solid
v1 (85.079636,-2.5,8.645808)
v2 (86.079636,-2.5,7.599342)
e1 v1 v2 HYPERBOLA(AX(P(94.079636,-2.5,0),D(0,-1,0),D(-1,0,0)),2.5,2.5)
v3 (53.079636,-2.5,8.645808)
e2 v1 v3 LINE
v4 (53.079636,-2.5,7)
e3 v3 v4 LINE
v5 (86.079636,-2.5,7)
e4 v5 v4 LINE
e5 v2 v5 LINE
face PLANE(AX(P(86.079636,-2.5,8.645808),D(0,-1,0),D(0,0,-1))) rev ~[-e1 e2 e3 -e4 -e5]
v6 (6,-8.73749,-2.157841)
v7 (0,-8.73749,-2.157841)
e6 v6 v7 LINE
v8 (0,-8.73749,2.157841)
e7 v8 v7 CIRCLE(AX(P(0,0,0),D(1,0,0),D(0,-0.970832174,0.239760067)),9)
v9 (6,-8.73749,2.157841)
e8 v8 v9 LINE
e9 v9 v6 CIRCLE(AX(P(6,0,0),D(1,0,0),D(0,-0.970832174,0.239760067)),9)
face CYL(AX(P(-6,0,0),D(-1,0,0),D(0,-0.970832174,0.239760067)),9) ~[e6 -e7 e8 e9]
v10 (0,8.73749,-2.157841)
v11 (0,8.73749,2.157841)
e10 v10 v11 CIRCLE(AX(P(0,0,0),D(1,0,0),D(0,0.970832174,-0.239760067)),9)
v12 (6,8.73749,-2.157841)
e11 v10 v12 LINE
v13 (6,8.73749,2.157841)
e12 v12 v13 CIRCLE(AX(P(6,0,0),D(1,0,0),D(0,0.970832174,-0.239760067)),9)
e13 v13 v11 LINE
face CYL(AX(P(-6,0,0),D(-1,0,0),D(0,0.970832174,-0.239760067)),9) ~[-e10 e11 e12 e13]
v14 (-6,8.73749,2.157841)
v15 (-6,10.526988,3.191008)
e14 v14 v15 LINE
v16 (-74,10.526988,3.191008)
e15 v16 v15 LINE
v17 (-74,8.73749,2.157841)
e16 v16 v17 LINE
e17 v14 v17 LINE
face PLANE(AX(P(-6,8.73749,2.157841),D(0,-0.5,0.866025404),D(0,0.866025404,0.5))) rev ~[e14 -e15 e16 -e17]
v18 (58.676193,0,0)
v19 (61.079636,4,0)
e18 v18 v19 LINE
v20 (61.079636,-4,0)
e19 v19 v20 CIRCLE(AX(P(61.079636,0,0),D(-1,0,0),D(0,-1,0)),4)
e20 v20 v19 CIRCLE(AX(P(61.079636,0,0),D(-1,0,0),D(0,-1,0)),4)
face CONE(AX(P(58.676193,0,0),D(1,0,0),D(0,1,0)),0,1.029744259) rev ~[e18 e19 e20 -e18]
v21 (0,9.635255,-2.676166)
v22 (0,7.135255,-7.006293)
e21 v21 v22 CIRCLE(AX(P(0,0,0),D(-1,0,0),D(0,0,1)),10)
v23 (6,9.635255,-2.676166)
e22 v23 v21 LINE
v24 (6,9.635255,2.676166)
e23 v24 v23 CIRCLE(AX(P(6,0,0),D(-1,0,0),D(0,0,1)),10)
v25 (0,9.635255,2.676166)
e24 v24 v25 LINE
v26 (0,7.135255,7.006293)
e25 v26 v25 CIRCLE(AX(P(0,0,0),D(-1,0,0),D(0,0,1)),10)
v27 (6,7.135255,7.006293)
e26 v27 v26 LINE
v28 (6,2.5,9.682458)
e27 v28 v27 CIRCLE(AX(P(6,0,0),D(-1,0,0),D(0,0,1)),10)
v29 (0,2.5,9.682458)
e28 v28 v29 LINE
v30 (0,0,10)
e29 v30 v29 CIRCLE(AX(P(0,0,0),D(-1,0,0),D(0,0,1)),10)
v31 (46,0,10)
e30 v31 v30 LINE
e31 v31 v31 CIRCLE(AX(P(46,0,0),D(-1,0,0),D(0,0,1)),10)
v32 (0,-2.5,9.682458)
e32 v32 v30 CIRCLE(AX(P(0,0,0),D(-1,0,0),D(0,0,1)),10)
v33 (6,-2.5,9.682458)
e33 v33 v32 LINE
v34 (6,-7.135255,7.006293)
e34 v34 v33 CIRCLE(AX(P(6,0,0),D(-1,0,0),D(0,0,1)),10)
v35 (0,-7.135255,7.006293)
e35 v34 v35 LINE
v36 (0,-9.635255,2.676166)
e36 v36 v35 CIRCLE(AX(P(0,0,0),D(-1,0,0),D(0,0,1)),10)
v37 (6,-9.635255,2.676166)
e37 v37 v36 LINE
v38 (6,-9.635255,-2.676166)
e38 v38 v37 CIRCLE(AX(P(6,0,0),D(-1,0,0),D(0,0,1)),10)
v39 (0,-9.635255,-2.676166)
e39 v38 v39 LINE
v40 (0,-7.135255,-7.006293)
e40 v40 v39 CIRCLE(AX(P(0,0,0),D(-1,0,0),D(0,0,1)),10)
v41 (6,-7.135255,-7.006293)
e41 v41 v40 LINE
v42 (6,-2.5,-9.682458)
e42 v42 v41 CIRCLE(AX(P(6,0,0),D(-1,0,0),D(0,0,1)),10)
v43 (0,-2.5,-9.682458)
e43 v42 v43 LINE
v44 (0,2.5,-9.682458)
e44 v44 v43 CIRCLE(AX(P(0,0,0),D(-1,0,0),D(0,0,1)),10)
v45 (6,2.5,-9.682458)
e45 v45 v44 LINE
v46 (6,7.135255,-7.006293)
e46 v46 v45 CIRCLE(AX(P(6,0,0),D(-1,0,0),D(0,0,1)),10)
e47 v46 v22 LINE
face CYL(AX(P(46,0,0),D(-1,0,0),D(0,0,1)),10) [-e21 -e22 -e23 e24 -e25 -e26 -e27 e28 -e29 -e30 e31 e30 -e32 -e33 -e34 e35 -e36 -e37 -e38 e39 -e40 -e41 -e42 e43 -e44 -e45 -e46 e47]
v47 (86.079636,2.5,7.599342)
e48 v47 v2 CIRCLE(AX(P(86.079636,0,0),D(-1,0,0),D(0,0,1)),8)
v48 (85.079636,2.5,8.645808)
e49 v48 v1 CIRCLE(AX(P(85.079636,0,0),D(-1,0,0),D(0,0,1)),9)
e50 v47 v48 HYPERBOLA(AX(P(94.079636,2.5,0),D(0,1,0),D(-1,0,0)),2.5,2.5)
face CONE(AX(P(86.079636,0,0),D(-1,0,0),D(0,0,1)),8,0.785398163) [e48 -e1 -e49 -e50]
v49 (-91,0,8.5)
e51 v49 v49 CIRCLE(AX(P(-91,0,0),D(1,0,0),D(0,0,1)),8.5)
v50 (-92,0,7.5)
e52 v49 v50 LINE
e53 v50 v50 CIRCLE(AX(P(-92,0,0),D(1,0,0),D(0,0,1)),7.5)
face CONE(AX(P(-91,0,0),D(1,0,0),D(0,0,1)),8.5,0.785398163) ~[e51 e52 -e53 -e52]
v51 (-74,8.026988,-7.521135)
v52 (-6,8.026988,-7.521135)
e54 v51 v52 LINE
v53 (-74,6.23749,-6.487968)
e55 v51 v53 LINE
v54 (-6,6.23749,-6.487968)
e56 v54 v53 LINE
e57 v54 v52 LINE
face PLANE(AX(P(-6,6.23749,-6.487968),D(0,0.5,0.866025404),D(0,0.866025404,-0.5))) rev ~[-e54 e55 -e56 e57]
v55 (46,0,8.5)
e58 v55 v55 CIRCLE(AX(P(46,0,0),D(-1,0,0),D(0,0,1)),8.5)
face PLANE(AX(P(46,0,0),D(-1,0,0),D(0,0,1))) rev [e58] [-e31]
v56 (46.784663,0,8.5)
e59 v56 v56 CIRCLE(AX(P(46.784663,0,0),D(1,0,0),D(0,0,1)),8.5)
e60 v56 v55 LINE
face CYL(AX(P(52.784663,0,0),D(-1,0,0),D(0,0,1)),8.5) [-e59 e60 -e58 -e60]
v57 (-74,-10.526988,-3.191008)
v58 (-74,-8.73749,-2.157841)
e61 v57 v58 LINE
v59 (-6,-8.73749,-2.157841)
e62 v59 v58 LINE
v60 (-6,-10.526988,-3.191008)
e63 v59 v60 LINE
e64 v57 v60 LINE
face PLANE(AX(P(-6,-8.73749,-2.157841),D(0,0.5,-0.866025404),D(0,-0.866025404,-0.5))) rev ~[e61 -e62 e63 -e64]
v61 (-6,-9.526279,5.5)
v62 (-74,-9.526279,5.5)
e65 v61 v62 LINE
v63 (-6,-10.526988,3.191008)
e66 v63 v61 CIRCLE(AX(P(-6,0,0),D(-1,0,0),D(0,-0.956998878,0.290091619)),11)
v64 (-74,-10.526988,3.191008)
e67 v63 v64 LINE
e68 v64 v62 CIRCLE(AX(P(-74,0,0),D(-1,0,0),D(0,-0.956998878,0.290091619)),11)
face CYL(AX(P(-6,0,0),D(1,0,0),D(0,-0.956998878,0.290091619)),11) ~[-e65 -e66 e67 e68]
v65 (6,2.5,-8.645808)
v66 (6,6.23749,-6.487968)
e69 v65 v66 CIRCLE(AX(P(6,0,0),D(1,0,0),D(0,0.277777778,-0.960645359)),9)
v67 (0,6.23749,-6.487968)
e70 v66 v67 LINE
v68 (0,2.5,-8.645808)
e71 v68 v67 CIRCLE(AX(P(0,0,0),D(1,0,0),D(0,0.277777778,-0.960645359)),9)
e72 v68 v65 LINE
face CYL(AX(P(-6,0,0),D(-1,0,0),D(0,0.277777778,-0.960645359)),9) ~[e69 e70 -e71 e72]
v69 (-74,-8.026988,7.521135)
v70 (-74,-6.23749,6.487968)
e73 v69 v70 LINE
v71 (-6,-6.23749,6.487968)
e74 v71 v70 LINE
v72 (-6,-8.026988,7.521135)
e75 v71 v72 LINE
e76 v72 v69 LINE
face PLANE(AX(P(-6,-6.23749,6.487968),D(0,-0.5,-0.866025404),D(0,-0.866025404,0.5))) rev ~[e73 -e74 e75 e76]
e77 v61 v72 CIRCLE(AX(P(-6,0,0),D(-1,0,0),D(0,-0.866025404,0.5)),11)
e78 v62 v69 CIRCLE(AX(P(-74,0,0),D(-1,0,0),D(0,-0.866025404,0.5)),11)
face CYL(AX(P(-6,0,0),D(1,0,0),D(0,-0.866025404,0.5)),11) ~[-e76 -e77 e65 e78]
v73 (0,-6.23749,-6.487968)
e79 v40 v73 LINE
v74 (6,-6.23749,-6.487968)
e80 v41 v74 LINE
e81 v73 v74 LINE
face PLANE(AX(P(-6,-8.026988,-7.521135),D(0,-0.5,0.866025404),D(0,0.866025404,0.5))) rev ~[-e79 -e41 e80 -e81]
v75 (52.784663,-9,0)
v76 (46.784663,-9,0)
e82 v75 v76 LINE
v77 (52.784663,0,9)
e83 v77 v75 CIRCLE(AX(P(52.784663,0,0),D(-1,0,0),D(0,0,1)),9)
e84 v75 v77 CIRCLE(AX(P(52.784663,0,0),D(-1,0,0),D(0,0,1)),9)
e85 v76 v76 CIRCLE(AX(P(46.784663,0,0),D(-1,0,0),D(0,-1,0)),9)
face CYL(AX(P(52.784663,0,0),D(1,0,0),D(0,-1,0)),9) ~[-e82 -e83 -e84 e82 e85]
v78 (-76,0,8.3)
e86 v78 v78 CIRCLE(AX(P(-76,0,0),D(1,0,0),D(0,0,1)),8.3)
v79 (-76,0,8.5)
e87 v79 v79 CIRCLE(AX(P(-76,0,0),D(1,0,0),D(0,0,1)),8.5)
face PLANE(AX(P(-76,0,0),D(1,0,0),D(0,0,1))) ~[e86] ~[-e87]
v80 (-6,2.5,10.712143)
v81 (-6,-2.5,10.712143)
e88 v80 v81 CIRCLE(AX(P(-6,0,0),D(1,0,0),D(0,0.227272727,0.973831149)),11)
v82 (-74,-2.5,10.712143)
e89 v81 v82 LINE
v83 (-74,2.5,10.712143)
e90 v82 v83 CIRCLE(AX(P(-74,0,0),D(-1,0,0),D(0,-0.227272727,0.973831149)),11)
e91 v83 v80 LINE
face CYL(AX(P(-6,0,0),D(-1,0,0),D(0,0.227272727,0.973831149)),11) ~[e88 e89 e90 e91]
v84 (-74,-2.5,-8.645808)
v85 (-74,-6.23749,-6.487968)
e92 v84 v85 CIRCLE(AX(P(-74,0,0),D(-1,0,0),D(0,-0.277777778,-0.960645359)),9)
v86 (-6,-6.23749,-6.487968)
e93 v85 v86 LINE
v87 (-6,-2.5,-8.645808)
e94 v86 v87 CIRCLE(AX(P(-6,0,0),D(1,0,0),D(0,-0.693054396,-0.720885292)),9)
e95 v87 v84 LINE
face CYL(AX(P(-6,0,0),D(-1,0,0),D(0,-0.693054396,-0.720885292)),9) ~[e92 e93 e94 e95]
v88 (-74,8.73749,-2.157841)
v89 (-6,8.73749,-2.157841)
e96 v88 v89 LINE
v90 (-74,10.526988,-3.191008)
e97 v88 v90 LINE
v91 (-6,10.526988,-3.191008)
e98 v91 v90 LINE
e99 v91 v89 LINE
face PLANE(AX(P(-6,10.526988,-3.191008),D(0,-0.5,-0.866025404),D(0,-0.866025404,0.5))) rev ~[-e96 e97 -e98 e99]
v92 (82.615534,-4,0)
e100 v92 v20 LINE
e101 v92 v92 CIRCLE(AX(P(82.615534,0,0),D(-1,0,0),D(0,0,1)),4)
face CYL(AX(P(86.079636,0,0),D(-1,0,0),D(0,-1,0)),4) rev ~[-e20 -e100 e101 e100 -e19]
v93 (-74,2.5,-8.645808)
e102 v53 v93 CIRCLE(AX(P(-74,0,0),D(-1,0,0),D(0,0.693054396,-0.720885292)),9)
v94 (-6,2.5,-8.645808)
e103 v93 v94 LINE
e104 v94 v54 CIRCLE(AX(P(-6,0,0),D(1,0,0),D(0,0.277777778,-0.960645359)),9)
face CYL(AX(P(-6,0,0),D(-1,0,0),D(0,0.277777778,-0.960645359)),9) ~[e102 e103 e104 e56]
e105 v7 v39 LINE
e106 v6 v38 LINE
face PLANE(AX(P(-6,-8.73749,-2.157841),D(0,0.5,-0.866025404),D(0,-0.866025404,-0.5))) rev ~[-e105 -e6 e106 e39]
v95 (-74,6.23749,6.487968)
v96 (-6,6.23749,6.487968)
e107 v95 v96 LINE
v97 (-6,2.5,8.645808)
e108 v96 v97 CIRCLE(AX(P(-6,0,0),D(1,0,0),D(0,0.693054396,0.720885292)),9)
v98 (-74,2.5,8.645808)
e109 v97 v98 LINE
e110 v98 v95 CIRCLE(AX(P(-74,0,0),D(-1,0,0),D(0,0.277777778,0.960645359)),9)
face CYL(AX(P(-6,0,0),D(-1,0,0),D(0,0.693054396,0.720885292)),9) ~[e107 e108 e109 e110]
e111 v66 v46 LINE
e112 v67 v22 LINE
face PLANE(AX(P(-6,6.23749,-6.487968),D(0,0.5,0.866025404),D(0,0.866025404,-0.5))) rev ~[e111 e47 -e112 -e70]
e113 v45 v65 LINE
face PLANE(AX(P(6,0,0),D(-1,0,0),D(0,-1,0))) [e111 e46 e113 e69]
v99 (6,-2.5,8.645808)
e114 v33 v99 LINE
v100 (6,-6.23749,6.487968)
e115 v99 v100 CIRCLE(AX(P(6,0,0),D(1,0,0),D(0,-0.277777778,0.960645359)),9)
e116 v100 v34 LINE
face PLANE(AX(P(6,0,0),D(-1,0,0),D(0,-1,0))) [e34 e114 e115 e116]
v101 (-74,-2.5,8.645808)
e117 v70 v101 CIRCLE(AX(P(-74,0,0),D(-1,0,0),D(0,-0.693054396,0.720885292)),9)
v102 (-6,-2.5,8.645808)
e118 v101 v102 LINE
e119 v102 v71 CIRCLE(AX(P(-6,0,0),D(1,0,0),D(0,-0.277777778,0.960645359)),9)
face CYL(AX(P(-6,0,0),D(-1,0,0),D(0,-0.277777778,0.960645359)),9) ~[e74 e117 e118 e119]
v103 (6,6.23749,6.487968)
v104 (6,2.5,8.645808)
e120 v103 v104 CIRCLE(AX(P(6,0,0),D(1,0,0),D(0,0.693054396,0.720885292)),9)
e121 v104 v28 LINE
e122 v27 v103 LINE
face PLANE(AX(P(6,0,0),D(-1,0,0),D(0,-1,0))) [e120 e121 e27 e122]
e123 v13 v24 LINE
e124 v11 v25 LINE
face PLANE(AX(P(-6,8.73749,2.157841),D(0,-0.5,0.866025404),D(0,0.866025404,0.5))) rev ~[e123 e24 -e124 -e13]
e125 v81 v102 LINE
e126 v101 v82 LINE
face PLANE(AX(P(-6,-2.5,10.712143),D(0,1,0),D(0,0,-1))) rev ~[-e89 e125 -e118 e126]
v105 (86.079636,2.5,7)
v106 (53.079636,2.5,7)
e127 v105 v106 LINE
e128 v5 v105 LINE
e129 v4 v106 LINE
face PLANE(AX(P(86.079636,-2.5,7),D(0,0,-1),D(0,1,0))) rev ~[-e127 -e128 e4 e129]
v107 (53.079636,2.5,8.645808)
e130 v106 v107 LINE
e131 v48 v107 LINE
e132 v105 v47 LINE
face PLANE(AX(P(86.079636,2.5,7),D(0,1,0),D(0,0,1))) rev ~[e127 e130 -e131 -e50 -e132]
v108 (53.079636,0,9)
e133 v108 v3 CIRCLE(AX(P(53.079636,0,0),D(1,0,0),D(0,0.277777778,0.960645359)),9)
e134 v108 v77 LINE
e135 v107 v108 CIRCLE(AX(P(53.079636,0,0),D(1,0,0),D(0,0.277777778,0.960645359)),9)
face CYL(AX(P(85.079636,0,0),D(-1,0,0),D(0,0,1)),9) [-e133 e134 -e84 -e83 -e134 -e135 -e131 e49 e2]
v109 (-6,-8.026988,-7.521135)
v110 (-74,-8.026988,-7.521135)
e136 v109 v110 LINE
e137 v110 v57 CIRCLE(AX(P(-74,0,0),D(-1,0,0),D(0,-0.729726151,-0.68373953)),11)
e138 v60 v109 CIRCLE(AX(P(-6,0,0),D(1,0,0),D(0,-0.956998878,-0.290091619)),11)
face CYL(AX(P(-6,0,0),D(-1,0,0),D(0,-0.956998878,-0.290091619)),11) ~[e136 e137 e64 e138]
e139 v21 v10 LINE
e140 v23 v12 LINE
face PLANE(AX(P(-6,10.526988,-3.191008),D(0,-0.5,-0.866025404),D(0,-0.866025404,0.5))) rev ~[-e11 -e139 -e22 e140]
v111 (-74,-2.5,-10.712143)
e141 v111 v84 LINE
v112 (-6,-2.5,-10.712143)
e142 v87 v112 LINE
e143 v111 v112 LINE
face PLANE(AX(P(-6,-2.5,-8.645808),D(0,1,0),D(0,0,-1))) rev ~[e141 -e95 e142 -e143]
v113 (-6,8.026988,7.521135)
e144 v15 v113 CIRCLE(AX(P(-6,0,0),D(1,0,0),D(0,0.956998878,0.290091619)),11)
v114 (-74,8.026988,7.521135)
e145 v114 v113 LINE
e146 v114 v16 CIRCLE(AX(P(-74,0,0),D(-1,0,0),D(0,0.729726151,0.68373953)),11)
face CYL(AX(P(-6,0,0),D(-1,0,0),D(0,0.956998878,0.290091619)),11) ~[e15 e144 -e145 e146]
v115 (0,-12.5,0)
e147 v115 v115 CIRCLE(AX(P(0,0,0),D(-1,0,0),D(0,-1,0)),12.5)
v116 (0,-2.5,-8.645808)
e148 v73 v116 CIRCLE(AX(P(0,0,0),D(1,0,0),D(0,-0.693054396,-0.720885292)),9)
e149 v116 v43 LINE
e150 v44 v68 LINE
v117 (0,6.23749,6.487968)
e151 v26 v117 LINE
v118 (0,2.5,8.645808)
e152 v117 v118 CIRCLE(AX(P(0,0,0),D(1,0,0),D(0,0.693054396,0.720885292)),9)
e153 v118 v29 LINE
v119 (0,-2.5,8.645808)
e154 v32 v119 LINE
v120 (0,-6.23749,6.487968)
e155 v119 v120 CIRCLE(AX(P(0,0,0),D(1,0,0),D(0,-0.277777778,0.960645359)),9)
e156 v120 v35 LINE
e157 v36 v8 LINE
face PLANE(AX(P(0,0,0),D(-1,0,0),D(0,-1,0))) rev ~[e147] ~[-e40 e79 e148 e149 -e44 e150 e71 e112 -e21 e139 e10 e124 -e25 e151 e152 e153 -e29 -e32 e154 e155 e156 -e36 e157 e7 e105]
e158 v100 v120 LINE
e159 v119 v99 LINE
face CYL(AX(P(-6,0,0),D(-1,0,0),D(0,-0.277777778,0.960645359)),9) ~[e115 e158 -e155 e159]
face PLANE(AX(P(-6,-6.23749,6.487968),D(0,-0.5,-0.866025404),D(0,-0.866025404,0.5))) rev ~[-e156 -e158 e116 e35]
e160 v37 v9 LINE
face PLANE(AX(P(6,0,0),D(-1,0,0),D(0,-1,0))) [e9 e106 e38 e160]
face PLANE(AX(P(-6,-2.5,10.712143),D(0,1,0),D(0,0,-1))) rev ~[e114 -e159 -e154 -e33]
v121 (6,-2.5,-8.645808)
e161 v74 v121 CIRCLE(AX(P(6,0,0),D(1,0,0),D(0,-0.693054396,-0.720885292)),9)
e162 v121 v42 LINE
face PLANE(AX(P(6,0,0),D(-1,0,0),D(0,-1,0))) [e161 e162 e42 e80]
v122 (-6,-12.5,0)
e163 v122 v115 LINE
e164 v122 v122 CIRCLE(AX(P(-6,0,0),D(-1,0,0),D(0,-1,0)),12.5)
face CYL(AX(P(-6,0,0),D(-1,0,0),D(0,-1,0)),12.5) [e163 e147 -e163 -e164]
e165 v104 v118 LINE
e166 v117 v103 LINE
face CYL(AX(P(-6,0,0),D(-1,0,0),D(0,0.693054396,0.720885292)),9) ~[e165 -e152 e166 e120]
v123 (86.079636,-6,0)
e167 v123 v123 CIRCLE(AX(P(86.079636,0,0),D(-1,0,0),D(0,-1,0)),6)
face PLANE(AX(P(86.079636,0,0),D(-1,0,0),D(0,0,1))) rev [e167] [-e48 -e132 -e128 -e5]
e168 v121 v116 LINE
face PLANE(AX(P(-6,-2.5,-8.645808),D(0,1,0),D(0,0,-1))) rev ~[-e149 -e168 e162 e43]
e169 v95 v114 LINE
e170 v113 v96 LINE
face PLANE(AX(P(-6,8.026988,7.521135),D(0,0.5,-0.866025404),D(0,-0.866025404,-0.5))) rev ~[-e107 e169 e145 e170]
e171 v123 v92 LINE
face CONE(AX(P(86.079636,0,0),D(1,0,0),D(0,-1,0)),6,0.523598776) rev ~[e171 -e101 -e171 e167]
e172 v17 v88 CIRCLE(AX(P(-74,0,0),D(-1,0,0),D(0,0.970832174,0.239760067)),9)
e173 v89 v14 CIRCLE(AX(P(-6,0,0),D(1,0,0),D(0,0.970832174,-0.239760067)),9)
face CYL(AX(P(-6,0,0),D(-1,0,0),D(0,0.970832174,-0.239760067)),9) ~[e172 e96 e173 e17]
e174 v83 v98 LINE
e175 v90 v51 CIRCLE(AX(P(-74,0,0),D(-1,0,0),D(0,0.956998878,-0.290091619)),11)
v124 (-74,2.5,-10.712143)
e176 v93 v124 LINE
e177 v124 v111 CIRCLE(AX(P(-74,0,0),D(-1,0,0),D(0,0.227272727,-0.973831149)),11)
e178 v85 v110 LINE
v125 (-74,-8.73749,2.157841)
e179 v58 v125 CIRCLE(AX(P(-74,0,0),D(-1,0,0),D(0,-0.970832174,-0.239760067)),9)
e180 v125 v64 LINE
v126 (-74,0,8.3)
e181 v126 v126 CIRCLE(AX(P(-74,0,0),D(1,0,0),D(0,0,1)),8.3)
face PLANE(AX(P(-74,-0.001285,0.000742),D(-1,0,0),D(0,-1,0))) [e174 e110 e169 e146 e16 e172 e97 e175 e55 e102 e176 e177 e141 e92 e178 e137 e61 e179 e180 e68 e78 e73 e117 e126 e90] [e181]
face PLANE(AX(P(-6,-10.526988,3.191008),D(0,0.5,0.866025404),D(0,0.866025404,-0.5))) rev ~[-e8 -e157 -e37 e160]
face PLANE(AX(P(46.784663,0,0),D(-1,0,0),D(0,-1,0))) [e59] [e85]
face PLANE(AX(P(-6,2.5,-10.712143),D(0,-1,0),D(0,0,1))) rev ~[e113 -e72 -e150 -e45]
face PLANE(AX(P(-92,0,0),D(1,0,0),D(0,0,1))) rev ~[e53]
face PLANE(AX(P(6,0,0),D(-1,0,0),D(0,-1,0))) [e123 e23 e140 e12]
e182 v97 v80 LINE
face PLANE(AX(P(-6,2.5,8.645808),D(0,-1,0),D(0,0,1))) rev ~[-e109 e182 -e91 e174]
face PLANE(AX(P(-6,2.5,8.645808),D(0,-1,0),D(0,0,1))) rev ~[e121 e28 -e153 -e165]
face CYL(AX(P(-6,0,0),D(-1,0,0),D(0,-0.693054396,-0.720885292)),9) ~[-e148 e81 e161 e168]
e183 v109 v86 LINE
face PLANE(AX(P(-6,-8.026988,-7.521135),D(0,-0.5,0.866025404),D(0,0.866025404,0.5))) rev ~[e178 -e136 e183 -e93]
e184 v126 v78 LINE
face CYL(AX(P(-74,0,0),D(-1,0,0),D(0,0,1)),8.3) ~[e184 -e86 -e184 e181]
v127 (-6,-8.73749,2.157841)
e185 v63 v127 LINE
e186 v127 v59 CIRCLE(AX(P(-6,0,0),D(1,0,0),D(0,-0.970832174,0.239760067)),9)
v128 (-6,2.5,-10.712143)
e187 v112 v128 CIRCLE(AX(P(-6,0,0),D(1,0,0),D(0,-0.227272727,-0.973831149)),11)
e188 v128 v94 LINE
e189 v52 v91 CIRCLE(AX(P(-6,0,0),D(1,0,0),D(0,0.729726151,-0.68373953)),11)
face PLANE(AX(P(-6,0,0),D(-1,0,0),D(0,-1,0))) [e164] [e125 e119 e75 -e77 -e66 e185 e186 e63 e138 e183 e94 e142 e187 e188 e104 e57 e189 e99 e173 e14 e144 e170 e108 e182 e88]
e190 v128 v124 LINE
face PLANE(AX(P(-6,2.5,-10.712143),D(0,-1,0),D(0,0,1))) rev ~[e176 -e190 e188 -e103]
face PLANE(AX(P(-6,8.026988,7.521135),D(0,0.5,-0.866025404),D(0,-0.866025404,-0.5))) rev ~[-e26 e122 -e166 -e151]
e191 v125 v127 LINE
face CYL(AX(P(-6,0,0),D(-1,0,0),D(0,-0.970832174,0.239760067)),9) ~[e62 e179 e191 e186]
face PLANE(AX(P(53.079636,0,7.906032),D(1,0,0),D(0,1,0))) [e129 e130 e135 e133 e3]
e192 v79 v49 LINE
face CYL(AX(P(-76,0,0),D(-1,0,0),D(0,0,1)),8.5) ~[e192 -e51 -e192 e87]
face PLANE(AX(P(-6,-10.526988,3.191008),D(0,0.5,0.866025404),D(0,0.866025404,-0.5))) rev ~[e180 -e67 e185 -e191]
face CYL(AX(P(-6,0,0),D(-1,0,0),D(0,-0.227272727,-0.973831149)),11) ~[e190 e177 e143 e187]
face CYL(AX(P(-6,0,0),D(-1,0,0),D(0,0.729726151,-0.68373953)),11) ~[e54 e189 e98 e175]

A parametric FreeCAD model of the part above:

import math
import FreeCAD as App
import Part
import Sketcher
Q = App.Units.Quantity

doc = App.newDocument("Part")
params = doc.addObject("Spreadsheet::Sheet", "Params")
for row, (alias, value) in enumerate([
    ("sketch1_width", "46 mm"),
    ("sketch1_height", "10 mm"),
    ("sketch1_height2", "8 mm"),
    ("sketch1_height3", "0.5 mm"),
    ("sketch1_height4", "1.5 mm"),
    ("revolution_angle", "360 deg"),
    ("sketch2_diameter", "25 mm"),
    ("pad1_length", "6 mm"),
    ("sketch3_radius", "9 mm"),
    ("sketch3_radius2", "11 mm"),
    ("pad2_length", "68 mm"),
    ("sketch4_diameter", "25 mm"),
    ("sketch4_radius", "9 mm"),
    ("sketch4_radius2", "11 mm"),
    ("pocket1_length", "12 mm"),
    ("sketch5_diameter", "25 mm"),
    ("sketch5_radius", "9 mm"),
    ("sketch5_radius2", "11 mm"),
    ("pad3_length", "6 mm"),
    ("sketch6_width", "18 mm"),
    ("sketch6_width2", "2 mm"),
    ("sketch6_width3", "15 mm"),
    ("sketch6_height", "8.3 mm"),
    ("sketch6_height2", "0.2 mm"),
    ("revolution2_angle", "360 deg"),
    ("sketch7_diameter", "8 mm"),
    ("hole_diameter", "8 mm"),
    ("hole_depth", "25 mm"),
    ("hole_csink_diameter", "12 mm"),
    ("sketch8_radius", "9 mm"),
    ("sketch8_width", "5 mm"),
    ("pocket2_length", "33 mm"),
    ("sketch9_diameter", "18 mm"),
    ("sketch9_diameter2", "17 mm"),
    ("pad4_length", "6 mm"),
], start=1):
    params.set(f"A{row}", alias)
    params.set(f"B{row}", "=" + value)
    params.setAlias(f"B{row}", alias)

body = doc.addObject("PartDesign::Body", "Body")

# Sketch on XZ plane
sketch1 = doc.addObject("Sketcher::SketchObject", "Sketch")
body.addObject(sketch1)
sketch1.AttachmentSupport = (doc.XZ_Plane, [""])
sketch1.MapMode = "FlatFace"
sketch1.addGeometry([
    Part.LineSegment(App.Vector(0, 10, 0), App.Vector(0, 0, 0)),  # 0
    Part.LineSegment(App.Vector(0, 0, 0), App.Vector(86.1, 0, 0)),  # 1
    Part.LineSegment(App.Vector(86.1, 0, 0), App.Vector(86.1, 8, 0)),  # 2
    Part.LineSegment(App.Vector(86.1, 8, 0), App.Vector(85.1, 9, 0)),  # 3
    Part.LineSegment(App.Vector(85.1, 9, 0), App.Vector(52.8, 9, 0)),  # 4
    Part.LineSegment(App.Vector(52.8, 9, 0), App.Vector(52.8, 8.5, 0)),  # 5
    Part.LineSegment(App.Vector(52.8, 8.5, 0), App.Vector(46, 8.5, 0)),  # 6
    Part.LineSegment(App.Vector(46, 8.5, 0), App.Vector(46, 10, 0)),  # 7
    Part.LineSegment(App.Vector(46, 10, 0), App.Vector(0, 10, 0)),  # 8
], False)
sketch1.addConstraint([
    Sketcher.Constraint("Coincident", 0, 2, 1, 1),
    Sketcher.Constraint("Coincident", 1, 2, 2, 1),
    Sketcher.Constraint("Coincident", 2, 2, 3, 1),
    Sketcher.Constraint("Coincident", 3, 2, 4, 1),
    Sketcher.Constraint("Coincident", 4, 2, 5, 1),
    Sketcher.Constraint("Coincident", 5, 2, 6, 1),
    Sketcher.Constraint("Coincident", 6, 2, 7, 1),
    Sketcher.Constraint("Coincident", 7, 2, 8, 1),
    Sketcher.Constraint("Coincident", 8, 2, 0, 1),
    Sketcher.Constraint("Vertical", 0),
    Sketcher.Constraint("Horizontal", 1),
    Sketcher.Constraint("Vertical", 2),
    Sketcher.Constraint("Horizontal", 4),
    Sketcher.Constraint("Vertical", 5),
    Sketcher.Constraint("Horizontal", 6),
    Sketcher.Constraint("Vertical", 7),
    Sketcher.Constraint("Horizontal", 8),
    Sketcher.Constraint("Coincident", 0, 2, -1, 1),
    Sketcher.Constraint("DistanceX", 8, 2, 8, 1, 46.0),
    Sketcher.Constraint("DistanceY", 0, 2, 0, 1, 10.0),
    Sketcher.Constraint("DistanceY", 2, 1, 2, 2, 8.0),
    Sketcher.Constraint("Angle", 3, Q("135 deg")),
    Sketcher.Constraint("DistanceY", 5, 2, 5, 1, 0.5),
    Sketcher.Constraint("DistanceY", 7, 1, 7, 2, 1.5),
    Sketcher.Constraint("DistanceX", 1, 1, 1, 2, 86.079636),
    Sketcher.Constraint("DistanceX", 4, 2, 4, 1, 32.294973),
])
sketch1.setExpression("Constraints[18]", "Params.sketch1_width")
sketch1.setExpression("Constraints[19]", "Params.sketch1_height")
sketch1.setExpression("Constraints[20]", "Params.sketch1_height2")
sketch1.setExpression("Constraints[22]", "Params.sketch1_height3")
sketch1.setExpression("Constraints[23]", "Params.sketch1_height4")
revolution = doc.addObject("PartDesign::Revolution", "Revolution")
body.addObject(revolution)
revolution.Profile = sketch1
revolution.ReferenceAxis = (sketch1, ["H_Axis"])
revolution.setExpression("Angle", "Params.revolution_angle")

# Sketch on YZ plane
sketch2 = doc.addObject("Sketcher::SketchObject", "Sketch001")
body.addObject(sketch2)
sketch2.AttachmentSupport = (doc.YZ_Plane, [""])
sketch2.MapMode = "FlatFace"
sketch2.addGeometry(Part.Circle(App.Vector(0, 0, 0), App.Vector(0, 0, 1), 12), False)
sketch2.addConstraint([
    Sketcher.Constraint("Coincident", 0, 3, -1, 1),
    Sketcher.Constraint("Diameter", 0, 25.0),
])
sketch2.setExpression("Constraints[1]", "Params.sketch2_diameter")
pad1 = doc.addObject("PartDesign::Pad", "Pad")
body.addObject(pad1)
pad1.Profile = sketch2
pad1.setExpression("Length", "Params.pad1_length")
pad1.Reversed = True

# Sketch on YZ plane
sketch3 = doc.addObject("Sketcher::SketchObject", "Sketch002")
body.addObject(sketch3)
sketch3.AttachmentSupport = (doc.YZ_Plane, [""])
sketch3.MapMode = "FlatFace"
sketch3.AttachmentOffset = App.Placement(App.Vector(0, 0, -6), App.Rotation())
sketch3.addGeometry([
    Part.LineSegment(App.Vector(-8, 7.5, 0), App.Vector(-6.2, 6.5, 0)),  # 0
    Part.ArcOfCircle(Part.Circle(App.Vector(0, 0, 0), App.Vector(0, 0, 1), 9), math.radians(106), math.radians(134)),  # 1
    Part.LineSegment(App.Vector(-2.5, 8.6, 0), App.Vector(-2.5, 10.7, 0)),  # 2
    Part.ArcOfCircle(Part.Circle(App.Vector(0, 0, 0), App.Vector(0, 0, 1), 11), math.radians(77), math.radians(103)),  # 3
    Part.LineSegment(App.Vector(2.5, 10.7, 0), App.Vector(2.5, 8.6, 0)),  # 4
    Part.ArcOfCircle(Part.Circle(App.Vector(0, 0, 0), App.Vector(0, 0, 1), 9), math.radians(46), math.radians(74)),  # 5
    Part.LineSegment(App.Vector(6.2, 6.5, 0), App.Vector(8, 7.5, 0)),  # 6
    Part.ArcOfCircle(Part.Circle(App.Vector(0, 0, 0), App.Vector(0, 0, 1), 11), math.radians(17), math.radians(43)),  # 7
    Part.LineSegment(App.Vector(10.5, 3.2, 0), App.Vector(8.7, 2.2, 0)),  # 8
    Part.ArcOfCircle(Part.Circle(App.Vector(0, 0, 0), App.Vector(0, 0, 1), 9), math.radians(-14), math.radians(14)),  # 9
    Part.LineSegment(App.Vector(8.7, -2.2, 0), App.Vector(10.5, -3.2, 0)),  # 10
    Part.ArcOfCircle(Part.Circle(App.Vector(0, 0, 0), App.Vector(0, 0, 1), 11), math.radians(-43), math.radians(-17)),  # 11
    Part.LineSegment(App.Vector(8, -7.5, 0), App.Vector(6.2, -6.5, 0)),  # 12
    Part.ArcOfCircle(Part.Circle(App.Vector(0, 0, 0), App.Vector(0, 0, 1), 9), math.radians(-74), math.radians(-46)),  # 13
    Part.LineSegment(App.Vector(2.5, -8.6, 0), App.Vector(2.5, -10.7, 0)),  # 14
    Part.ArcOfCircle(Part.Circle(App.Vector(0, 0, 0), App.Vector(0, 0, 1), 11), math.radians(-103), math.radians(-77)),  # 15
    Part.LineSegment(App.Vector(-2.5, -10.7, 0), App.Vector(-2.5, -8.6, 0)),  # 16
    Part.ArcOfCircle(Part.Circle(App.Vector(0, 0, 0), App.Vector(0, 0, 1), 9), math.radians(-134), math.radians(-106)),  # 17
    Part.LineSegment(App.Vector(-6.2, -6.5, 0), App.Vector(-8, -7.5, 0)),  # 18
    Part.ArcOfCircle(Part.Circle(App.Vector(0, 0, 0), App.Vector(0, 0, 1), 11), math.radians(-163), math.radians(-137)),  # 19
    Part.LineSegment(App.Vector(-10.5, -3.2, 0), App.Vector(-8.7, -2.2, 0)),  # 20
    Part.ArcOfCircle(Part.Circle(App.Vector(0, 0, 0), App.Vector(0, 0, 1), 9), math.radians(166), math.radians(194)),  # 21
    Part.LineSegment(App.Vector(-8.7, 2.2, 0), App.Vector(-10.5, 3.2, 0)),  # 22
    Part.ArcOfCircle(Part.Circle(App.Vector(0, 0, 0), App.Vector(0, 0, 1), 11), math.radians(150), math.radians(163.14)),  # 23
    Part.ArcOfCircle(Part.Circle(App.Vector(0, 0, 0), App.Vector(0, 0, 1), 11), math.radians(136.86), math.radians(150)),  # 24
], False)
sketch3.addConstraint([
    Sketcher.Constraint("Coincident", 0, 2, 1, 2),
    Sketcher.Constraint("Coincident", 1, 1, 2, 1),
    Sketcher.Constraint("Coincident", 2, 2, 3, 2),
    Sketcher.Constraint("Coincident", 3, 1, 4, 1),
    Sketcher.Constraint("Coincident", 4, 2, 5, 2),
    Sketcher.Constraint("Coincident", 5, 1, 6, 1),
    Sketcher.Constraint("Coincident", 6, 2, 7, 2),
    Sketcher.Constraint("Coincident", 7, 1, 8, 1),
    Sketcher.Constraint("Coincident", 8, 2, 9, 2),
    Sketcher.Constraint("Coincident", 9, 1, 10, 1),
    Sketcher.Constraint("Coincident", 10, 2, 11, 2),
    Sketcher.Constraint("Coincident", 11, 1, 12, 1),
    Sketcher.Constraint("Coincident", 12, 2, 13, 2),
    Sketcher.Constraint("Coincident", 13, 1, 14, 1),
    Sketcher.Constraint("Coincident", 14, 2, 15, 2),
    Sketcher.Constraint("Coincident", 15, 1, 16, 1),
    Sketcher.Constraint("Coincident", 16, 2, 17, 2),
    Sketcher.Constraint("Coincident", 17, 1, 18, 1),
    Sketcher.Constraint("Coincident", 18, 2, 19, 2),
    Sketcher.Constraint("Coincident", 19, 1, 20, 1),
    Sketcher.Constraint("Coincident", 20, 2, 21, 2),
    Sketcher.Constraint("Coincident", 21, 1, 22, 1),
    Sketcher.Constraint("Coincident", 22, 2, 23, 2),
    Sketcher.Constraint("Tangent", 23, 1, 24, 2),
    Sketcher.Constraint("Coincident", 24, 1, 0, 1),
    Sketcher.Constraint("Vertical", 2),
    Sketcher.Constraint("Vertical", 4),
    Sketcher.Constraint("Vertical", 14),
    Sketcher.Constraint("Vertical", 16),
    Sketcher.Constraint("Coincident", 1, 3, -1, 1),
    Sketcher.Constraint("Coincident", 3, 3, -1, 1),
    Sketcher.Constraint("Coincident", 5, 3, -1, 1),
    Sketcher.Constraint("Coincident", 7, 3, -1, 1),
    Sketcher.Constraint("Coincident", 9, 3, -1, 1),
    Sketcher.Constraint("Coincident", 11, 3, -1, 1),
    Sketcher.Constraint("Coincident", 13, 3, -1, 1),
    Sketcher.Constraint("Coincident", 15, 3, -1, 1),
    Sketcher.Constraint("Coincident", 17, 3, -1, 1),
    Sketcher.Constraint("Coincident", 19, 3, -1, 1),
    Sketcher.Constraint("Coincident", 21, 3, -1, 1),
    Sketcher.Constraint("Coincident", 23, 3, -1, 1),
    Sketcher.Constraint("Equal", 1, 5),
    Sketcher.Constraint("Equal", 3, 7),
    Sketcher.Constraint("Equal", 5, 9),
    Sketcher.Constraint("Equal", 7, 11),
    Sketcher.Constraint("Equal", 9, 13),
    Sketcher.Constraint("Equal", 11, 15),
    Sketcher.Constraint("Equal", 13, 17),
    Sketcher.Constraint("Equal", 15, 19),
    Sketcher.Constraint("Equal", 17, 21),
    Sketcher.Constraint("Equal", 19, 23),
    Sketcher.Constraint("Equal", 23, 24),
    Sketcher.Constraint("Parallel", 6, 8),
    Sketcher.Constraint("Parallel", 0, 10),
    Sketcher.Constraint("Parallel", 10, 12),
    Sketcher.Constraint("Parallel", 8, 18),
    Sketcher.Constraint("Parallel", 18, 20),
    Sketcher.Constraint("Parallel", 12, 22),
    Sketcher.Constraint("Horizontal", 2, 2, 3, 1),
    Sketcher.Constraint("Horizontal", 0, 2, 5, 1),
    Sketcher.Constraint("Horizontal", 14, 2, 15, 1),
    Sketcher.Constraint("Horizontal", 12, 2, 17, 1),
    Sketcher.Constraint("Horizontal", 11, 1, 18, 2),
    Sketcher.Constraint("Horizontal", 10, 2, 19, 1),
    Sketcher.Constraint("Horizontal", 8, 2, 21, 1),
    Sketcher.Constraint("Vertical", 8, 2, 9, 1),
    Sketcher.Constraint("Vertical", 6, 2, 11, 1),
    Sketcher.Constraint("Vertical", 4, 2, 13, 1),
    Sketcher.Constraint("Equal", 6, 8),
    Sketcher.Constraint("Radius", 1, 9.0),
    Sketcher.Constraint("Radius", 3, 11.0),
    Sketcher.Constraint("Angle", 0, Q("-30 deg")),
    Sketcher.Constraint("DistanceX", 2, 2, 3, 1, 5.0),
    Sketcher.Constraint("DistanceY", -1, 1, 23, 1, 5.5),
    Sketcher.Constraint("DistanceX", 6, 2, 7, 1, 2.5),
])
sketch3.setExpression("Constraints[69]", "Params.sketch3_radius")
sketch3.setExpression("Constraints[70]", "Params.sketch3_radius2")
pad2 = doc.addObject("PartDesign::Pad", "Pad001")
body.addObject(pad2)
pad2.Profile = sketch3
pad2.setExpression("Length", "Params.pad2_length")
pad2.Reversed = True

# Sketch on YZ plane
sketch4 = doc.addObject("Sketcher::SketchObject", "Sketch003")
body.addObject(sketch4)
sketch4.AttachmentSupport = (doc.YZ_Plane, [""])
sketch4.MapMode = "FlatFace"
sketch4.AttachmentOffset = App.Placement(App.Vector(0, 0, -6), App.Rotation())
sketch4.addGeometry([
    Part.Circle(App.Vector(0, 0, 0), App.Vector(0, 0, 1), 12.5),  # 0
    Part.LineSegment(App.Vector(-2.5, 10.7, 0), App.Vector(-2.5, 8.6, 0)),  # 1
    Part.ArcOfCircle(Part.Circle(App.Vector(0, 0, 0), App.Vector(0, 0, 1), 9), math.radians(106), math.radians(134)),  # 2
    Part.LineSegment(App.Vector(-6.2, 6.5, 0), App.Vector(-8, 7.5, 0)),  # 3
    Part.ArcOfCircle(Part.Circle(App.Vector(0, 0, 0), App.Vector(0, 0, 1), 11), math.radians(137), math.radians(163)),  # 4
    Part.LineSegment(App.Vector(-10.5, 3.2, 0), App.Vector(-8.7, 2.2, 0)),  # 5
    Part.ArcOfCircle(Part.Circle(App.Vector(0, 0, 0), App.Vector(0, 0, 1), 9), math.radians(166), math.radians(194)),  # 6
    Part.LineSegment(App.Vector(-8.7, -2.2, 0), App.Vector(-10.5, -3.2, 0)),  # 7
    Part.ArcOfCircle(Part.Circle(App.Vector(0, 0, 0), App.Vector(0, 0, 1), 11), math.radians(-163), math.radians(-137)),  # 8
    Part.LineSegment(App.Vector(-8, -7.5, 0), App.Vector(-6.2, -6.5, 0)),  # 9
    Part.ArcOfCircle(Part.Circle(App.Vector(0, 0, 0), App.Vector(0, 0, 1), 9), math.radians(-134), math.radians(-106)),  # 10
    Part.LineSegment(App.Vector(-2.5, -8.6, 0), App.Vector(-2.5, -10.7, 0)),  # 11
    Part.ArcOfCircle(Part.Circle(App.Vector(0, 0, 0), App.Vector(0, 0, 1), 11), math.radians(-103), math.radians(-77)),  # 12
    Part.LineSegment(App.Vector(2.5, -10.7, 0), App.Vector(2.5, -8.6, 0)),  # 13
    Part.ArcOfCircle(Part.Circle(App.Vector(0, 0, 0), App.Vector(0, 0, 1), 9), math.radians(-74), math.radians(-46)),  # 14
    Part.LineSegment(App.Vector(6.2, -6.5, 0), App.Vector(8, -7.5, 0)),  # 15
    Part.ArcOfCircle(Part.Circle(App.Vector(0, 0, 0), App.Vector(0, 0, 1), 11), math.radians(-43), math.radians(-17)),  # 16
    Part.LineSegment(App.Vector(10.5, -3.2, 0), App.Vector(8.7, -2.2, 0)),  # 17
    Part.ArcOfCircle(Part.Circle(App.Vector(0, 0, 0), App.Vector(0, 0, 1), 9), math.radians(-14), math.radians(14)),  # 18
    Part.LineSegment(App.Vector(8.7, 2.2, 0), App.Vector(10.5, 3.2, 0)),  # 19
    Part.ArcOfCircle(Part.Circle(App.Vector(0, 0, 0), App.Vector(0, 0, 1), 11), math.radians(17), math.radians(43)),  # 20
    Part.LineSegment(App.Vector(8, 7.5, 0), App.Vector(6.2, 6.5, 0)),  # 21
    Part.ArcOfCircle(Part.Circle(App.Vector(0, 0, 0), App.Vector(0, 0, 1), 9), math.radians(46), math.radians(74)),  # 22
    Part.LineSegment(App.Vector(2.5, 8.6, 0), App.Vector(2.5, 10.7, 0)),  # 23
    Part.ArcOfCircle(Part.Circle(App.Vector(0, 0, 0), App.Vector(0, 0, 1), 11), math.radians(77), math.radians(103)),  # 24
], False)
sketch4.addConstraint([
    Sketcher.Constraint("Coincident", 1, 2, 2, 1),
    Sketcher.Constraint("Coincident", 2, 2, 3, 1),
    Sketcher.Constraint("Coincident", 3, 2, 4, 1),
    Sketcher.Constraint("Coincident", 4, 2, 5, 1),
    Sketcher.Constraint("Coincident", 5, 2, 6, 1),
    Sketcher.Constraint("Coincident", 6, 2, 7, 1),
    Sketcher.Constraint("Coincident", 7, 2, 8, 1),
    Sketcher.Constraint("Coincident", 8, 2, 9, 1),
    Sketcher.Constraint("Coincident", 9, 2, 10, 1),
    Sketcher.Constraint("Coincident", 10, 2, 11, 1),
    Sketcher.Constraint("Coincident", 11, 2, 12, 1),
    Sketcher.Constraint("Coincident", 12, 2, 13, 1),
    Sketcher.Constraint("Coincident", 13, 2, 14, 1),
    Sketcher.Constraint("Coincident", 14, 2, 15, 1),
    Sketcher.Constraint("Coincident", 15, 2, 16, 1),
    Sketcher.Constraint("Coincident", 16, 2, 17, 1),
    Sketcher.Constraint("Coincident", 17, 2, 18, 1),
    Sketcher.Constraint("Coincident", 18, 2, 19, 1),
    Sketcher.Constraint("Coincident", 19, 2, 20, 1),
    Sketcher.Constraint("Coincident", 20, 2, 21, 1),
    Sketcher.Constraint("Coincident", 21, 2, 22, 1),
    Sketcher.Constraint("Coincident", 22, 2, 23, 1),
    Sketcher.Constraint("Coincident", 23, 2, 24, 1),
    Sketcher.Constraint("Coincident", 24, 2, 1, 1),
    Sketcher.Constraint("Vertical", 1),
    Sketcher.Constraint("Vertical", 11),
    Sketcher.Constraint("Vertical", 13),
    Sketcher.Constraint("Vertical", 23),
    Sketcher.Constraint("Coincident", 0, 3, -1, 1),
    Sketcher.Constraint("Coincident", 2, 3, -1, 1),
    Sketcher.Constraint("Coincident", 4, 3, -1, 1),
    Sketcher.Constraint("Coincident", 6, 3, -1, 1),
    Sketcher.Constraint("Coincident", 8, 3, -1, 1),
    Sketcher.Constraint("Coincident", 10, 3, -1, 1),
    Sketcher.Constraint("Coincident", 12, 3, -1, 1),
    Sketcher.Constraint("Coincident", 14, 3, -1, 1),
    Sketcher.Constraint("Coincident", 16, 3, -1, 1),
    Sketcher.Constraint("Coincident", 18, 3, -1, 1),
    Sketcher.Constraint("Coincident", 20, 3, -1, 1),
    Sketcher.Constraint("Coincident", 22, 3, -1, 1),
    Sketcher.Constraint("Coincident", 24, 3, -1, 1),
    Sketcher.Constraint("Equal", 2, 6),
    Sketcher.Constraint("Equal", 4, 8),
    Sketcher.Constraint("Equal", 6, 10),
    Sketcher.Constraint("Equal", 8, 12),
    Sketcher.Constraint("Equal", 10, 14),
    Sketcher.Constraint("Equal", 12, 16),
    Sketcher.Constraint("Equal", 14, 18),
    Sketcher.Constraint("Equal", 16, 20),
    Sketcher.Constraint("Equal", 18, 22),
    Sketcher.Constraint("Equal", 20, 24),
    Sketcher.Constraint("Parallel", 3, 5),
    Sketcher.Constraint("Parallel", 7, 9),
    Sketcher.Constraint("Parallel", 5, 15),
    Sketcher.Constraint("Parallel", 15, 17),
    Sketcher.Constraint("Parallel", 9, 19),
    Sketcher.Constraint("Parallel", 19, 21),
    Sketcher.Constraint("Horizontal", 11, 2, 12, 2),
    Sketcher.Constraint("Horizontal", 9, 2, 14, 2),
    Sketcher.Constraint("Horizontal", 8, 2, 15, 2),
    Sketcher.Constraint("Horizontal", 7, 2, 16, 2),
    Sketcher.Constraint("Horizontal", 5, 2, 18, 2),
    Sketcher.Constraint("Horizontal", 3, 2, 20, 2),
    Sketcher.Constraint("Horizontal", 1, 2, 22, 2),
    Sketcher.Constraint("Vertical", 5, 2, 6, 2),
    Sketcher.Constraint("Vertical", 3, 2, 8, 2),
    Sketcher.Constraint("Vertical", 1, 2, 10, 2),
    Sketcher.Constraint("Equal", 3, 5),
    Sketcher.Constraint("Diameter", 0, 25.0),
    Sketcher.Constraint("Radius", 2, 9.0),
    Sketcher.Constraint("Radius", 4, 11.0),
    Sketcher.Constraint("Angle", 3, Q("150 deg")),
    Sketcher.Constraint("DistanceX", 11, 2, 12, 2, 5.0),
    Sketcher.Constraint("DistanceX", 4, 2, 3, 2, 2.5),
])
sketch4.setExpression("Constraints[68]", "Params.sketch4_diameter")
sketch4.setExpression("Constraints[69]", "Params.sketch4_radius")
sketch4.setExpression("Constraints[70]", "Params.sketch4_radius2")
pocket1 = doc.addObject("PartDesign::Pocket", "Pocket")
body.addObject(pocket1)
pocket1.Profile = sketch4
pocket1.setExpression("Length", "Params.pocket1_length")
pocket1.Reversed = True

# Sketch on YZ plane
sketch5 = doc.addObject("Sketcher::SketchObject", "Sketch004")
body.addObject(sketch5)
sketch5.AttachmentSupport = (doc.YZ_Plane, [""])
sketch5.MapMode = "FlatFace"
sketch5.AttachmentOffset = App.Placement(App.Vector(0, 0, -6), App.Rotation())
sketch5.addGeometry([
    Part.Circle(App.Vector(0, 0, 0), App.Vector(0, 0, 1), 12.5),  # 0
    Part.LineSegment(App.Vector(-2.5, 10.7, 0), App.Vector(-2.5, 8.6, 0)),  # 1
    Part.ArcOfCircle(Part.Circle(App.Vector(0, 0, 0), App.Vector(0, 0, 1), 9), math.radians(106), math.radians(134)),  # 2
    Part.LineSegment(App.Vector(-6.2, 6.5, 0), App.Vector(-8, 7.5, 0)),  # 3
    Part.ArcOfCircle(Part.Circle(App.Vector(0, 0, 0), App.Vector(0, 0, 1), 11), math.radians(137), math.radians(163)),  # 4
    Part.LineSegment(App.Vector(-10.5, 3.2, 0), App.Vector(-8.7, 2.2, 0)),  # 5
    Part.ArcOfCircle(Part.Circle(App.Vector(0, 0, 0), App.Vector(0, 0, 1), 9), math.radians(166), math.radians(194)),  # 6
    Part.LineSegment(App.Vector(-8.7, -2.2, 0), App.Vector(-10.5, -3.2, 0)),  # 7
    Part.ArcOfCircle(Part.Circle(App.Vector(0, 0, 0), App.Vector(0, 0, 1), 11), math.radians(-163), math.radians(-137)),  # 8
    Part.LineSegment(App.Vector(-8, -7.5, 0), App.Vector(-6.2, -6.5, 0)),  # 9
    Part.ArcOfCircle(Part.Circle(App.Vector(0, 0, 0), App.Vector(0, 0, 1), 9), math.radians(-134), math.radians(-106)),  # 10
    Part.LineSegment(App.Vector(-2.5, -8.6, 0), App.Vector(-2.5, -10.7, 0)),  # 11
    Part.ArcOfCircle(Part.Circle(App.Vector(0, 0, 0), App.Vector(0, 0, 1), 11), math.radians(-103), math.radians(-77)),  # 12
    Part.LineSegment(App.Vector(2.5, -10.7, 0), App.Vector(2.5, -8.6, 0)),  # 13
    Part.ArcOfCircle(Part.Circle(App.Vector(0, 0, 0), App.Vector(0, 0, 1), 9), math.radians(-74), math.radians(-46)),  # 14
    Part.LineSegment(App.Vector(6.2, -6.5, 0), App.Vector(8, -7.5, 0)),  # 15
    Part.ArcOfCircle(Part.Circle(App.Vector(0, 0, 0), App.Vector(0, 0, 1), 11), math.radians(-43), math.radians(-17)),  # 16
    Part.LineSegment(App.Vector(10.5, -3.2, 0), App.Vector(8.7, -2.2, 0)),  # 17
    Part.ArcOfCircle(Part.Circle(App.Vector(0, 0, 0), App.Vector(0, 0, 1), 9), math.radians(-14), math.radians(14)),  # 18
    Part.LineSegment(App.Vector(8.7, 2.2, 0), App.Vector(10.5, 3.2, 0)),  # 19
    Part.ArcOfCircle(Part.Circle(App.Vector(0, 0, 0), App.Vector(0, 0, 1), 11), math.radians(17), math.radians(43)),  # 20
    Part.LineSegment(App.Vector(8, 7.5, 0), App.Vector(6.2, 6.5, 0)),  # 21
    Part.ArcOfCircle(Part.Circle(App.Vector(0, 0, 0), App.Vector(0, 0, 1), 9), math.radians(46), math.radians(74)),  # 22
    Part.LineSegment(App.Vector(2.5, 8.6, 0), App.Vector(2.5, 10.7, 0)),  # 23
    Part.ArcOfCircle(Part.Circle(App.Vector(0, 0, 0), App.Vector(0, 0, 1), 11), math.radians(77), math.radians(103)),  # 24
], False)
sketch5.addConstraint([
    Sketcher.Constraint("Coincident", 1, 2, 2, 1),
    Sketcher.Constraint("Coincident", 2, 2, 3, 1),
    Sketcher.Constraint("Coincident", 3, 2, 4, 1),
    Sketcher.Constraint("Coincident", 4, 2, 5, 1),
    Sketcher.Constraint("Coincident", 5, 2, 6, 1),
    Sketcher.Constraint("Coincident", 6, 2, 7, 1),
    Sketcher.Constraint("Coincident", 7, 2, 8, 1),
    Sketcher.Constraint("Coincident", 8, 2, 9, 1),
    Sketcher.Constraint("Coincident", 9, 2, 10, 1),
    Sketcher.Constraint("Coincident", 10, 2, 11, 1),
    Sketcher.Constraint("Coincident", 11, 2, 12, 1),
    Sketcher.Constraint("Coincident", 12, 2, 13, 1),
    Sketcher.Constraint("Coincident", 13, 2, 14, 1),
    Sketcher.Constraint("Coincident", 14, 2, 15, 1),
    Sketcher.Constraint("Coincident", 15, 2, 16, 1),
    Sketcher.Constraint("Coincident", 16, 2, 17, 1),
    Sketcher.Constraint("Coincident", 17, 2, 18, 1),
    Sketcher.Constraint("Coincident", 18, 2, 19, 1),
    Sketcher.Constraint("Coincident", 19, 2, 20, 1),
    Sketcher.Constraint("Coincident", 20, 2, 21, 1),
    Sketcher.Constraint("Coincident", 21, 2, 22, 1),
    Sketcher.Constraint("Coincident", 22, 2, 23, 1),
    Sketcher.Constraint("Coincident", 23, 2, 24, 1),
    Sketcher.Constraint("Coincident", 24, 2, 1, 1),
    Sketcher.Constraint("Vertical", 1),
    Sketcher.Constraint("Vertical", 11),
    Sketcher.Constraint("Vertical", 13),
    Sketcher.Constraint("Vertical", 23),
    Sketcher.Constraint("Coincident", 0, 3, -1, 1),
    Sketcher.Constraint("Coincident", 2, 3, -1, 1),
    Sketcher.Constraint("Coincident", 4, 3, -1, 1),
    Sketcher.Constraint("Coincident", 6, 3, -1, 1),
    Sketcher.Constraint("Coincident", 8, 3, -1, 1),
    Sketcher.Constraint("Coincident", 10, 3, -1, 1),
    Sketcher.Constraint("Coincident", 12, 3, -1, 1),
    Sketcher.Constraint("Coincident", 14, 3, -1, 1),
    Sketcher.Constraint("Coincident", 16, 3, -1, 1),
    Sketcher.Constraint("Coincident", 18, 3, -1, 1),
    Sketcher.Constraint("Coincident", 20, 3, -1, 1),
    Sketcher.Constraint("Coincident", 22, 3, -1, 1),
    Sketcher.Constraint("Coincident", 24, 3, -1, 1),
    Sketcher.Constraint("Equal", 2, 6),
    Sketcher.Constraint("Equal", 4, 8),
    Sketcher.Constraint("Equal", 6, 10),
    Sketcher.Constraint("Equal", 8, 12),
    Sketcher.Constraint("Equal", 10, 14),
    Sketcher.Constraint("Equal", 12, 16),
    Sketcher.Constraint("Equal", 14, 18),
    Sketcher.Constraint("Equal", 16, 20),
    Sketcher.Constraint("Equal", 18, 22),
    Sketcher.Constraint("Equal", 20, 24),
    Sketcher.Constraint("Parallel", 3, 5),
    Sketcher.Constraint("Parallel", 7, 9),
    Sketcher.Constraint("Parallel", 5, 15),
    Sketcher.Constraint("Parallel", 15, 17),
    Sketcher.Constraint("Parallel", 9, 19),
    Sketcher.Constraint("Parallel", 19, 21),
    Sketcher.Constraint("Horizontal", 11, 2, 12, 2),
    Sketcher.Constraint("Horizontal", 9, 2, 14, 2),
    Sketcher.Constraint("Horizontal", 8, 2, 15, 2),
    Sketcher.Constraint("Horizontal", 7, 2, 16, 2),
    Sketcher.Constraint("Horizontal", 5, 2, 18, 2),
    Sketcher.Constraint("Horizontal", 3, 2, 20, 2),
    Sketcher.Constraint("Horizontal", 1, 2, 22, 2),
    Sketcher.Constraint("Vertical", 5, 2, 6, 2),
    Sketcher.Constraint("Vertical", 3, 2, 8, 2),
    Sketcher.Constraint("Vertical", 1, 2, 10, 2),
    Sketcher.Constraint("Equal", 3, 5),
    Sketcher.Constraint("Diameter", 0, 25.0),
    Sketcher.Constraint("Radius", 2, 9.0),
    Sketcher.Constraint("Radius", 4, 11.0),
    Sketcher.Constraint("Angle", 3, Q("150 deg")),
    Sketcher.Constraint("DistanceX", 11, 2, 12, 2, 5.0),
    Sketcher.Constraint("DistanceX", 4, 2, 3, 2, 2.5),
])
sketch5.setExpression("Constraints[68]", "Params.sketch5_diameter")
sketch5.setExpression("Constraints[69]", "Params.sketch5_radius")
sketch5.setExpression("Constraints[70]", "Params.sketch5_radius2")
pad3 = doc.addObject("PartDesign::Pad", "Pad002")
body.addObject(pad3)
pad3.Profile = sketch5
pad3.setExpression("Length", "Params.pad3_length")

# Sketch on XZ plane
sketch6 = doc.addObject("Sketcher::SketchObject", "Sketch005")
body.addObject(sketch6)
sketch6.AttachmentSupport = (doc.XZ_Plane, [""])
sketch6.MapMode = "FlatFace"
sketch6.addGeometry([
    Part.LineSegment(App.Vector(-92, 0, 0), App.Vector(-74, 0, 0)),  # 0
    Part.LineSegment(App.Vector(-74, 0, 0), App.Vector(-74, 8.3, 0)),  # 1
    Part.LineSegment(App.Vector(-74, 8.3, 0), App.Vector(-76, 8.3, 0)),  # 2
    Part.LineSegment(App.Vector(-76, 8.3, 0), App.Vector(-76, 8.5, 0)),  # 3
    Part.LineSegment(App.Vector(-76, 8.5, 0), App.Vector(-91, 8.5, 0)),  # 4
    Part.LineSegment(App.Vector(-91, 8.5, 0), App.Vector(-92, 7.5, 0)),  # 5
    Part.LineSegment(App.Vector(-92, 7.5, 0), App.Vector(-92, 0, 0)),  # 6
], False)
sketch6.addConstraint([
    Sketcher.Constraint("Coincident", 0, 2, 1, 1),
    Sketcher.Constraint("Coincident", 1, 2, 2, 1),
    Sketcher.Constraint("Coincident", 2, 2, 3, 1),
    Sketcher.Constraint("Coincident", 3, 2, 4, 1),
    Sketcher.Constraint("Coincident", 4, 2, 5, 1),
    Sketcher.Constraint("Coincident", 5, 2, 6, 1),
    Sketcher.Constraint("Coincident", 6, 2, 0, 1),
    Sketcher.Constraint("Horizontal", 0),
    Sketcher.Constraint("Vertical", 1),
    Sketcher.Constraint("Horizontal", 2),
    Sketcher.Constraint("Vertical", 3),
    Sketcher.Constraint("Horizontal", 4),
    Sketcher.Constraint("Vertical", 6),
    Sketcher.Constraint("PointOnObject", 0, 2, -1),
    Sketcher.Constraint("DistanceX", 0, 1, 0, 2, 18.0),
    Sketcher.Constraint("DistanceX", 2, 2, 2, 1, 2.0),
    Sketcher.Constraint("DistanceX", 4, 2, 4, 1, 15.0),
    Sketcher.Constraint("Angle", 5, Q("-135 deg")),
    Sketcher.Constraint("DistanceY", 1, 1, 1, 2, 8.3),
    Sketcher.Constraint("DistanceY", 3, 1, 3, 2, 0.2),
    Sketcher.Constraint("DistanceX", 0, 2, -1, 1, 74.0),
])
sketch6.setExpression("Constraints[14]", "Params.sketch6_width")
sketch6.setExpression("Constraints[15]", "Params.sketch6_width2")
sketch6.setExpression("Constraints[16]", "Params.sketch6_width3")
sketch6.setExpression("Constraints[18]", "Params.sketch6_height")
sketch6.setExpression("Constraints[19]", "Params.sketch6_height2")
revolution2 = doc.addObject("PartDesign::Revolution", "Revolution001")
body.addObject(revolution2)
revolution2.Profile = sketch6
revolution2.ReferenceAxis = (sketch6, ["H_Axis"])
revolution2.setExpression("Angle", "Params.revolution2_angle")

# Sketch on YZ plane
sketch7 = doc.addObject("Sketcher::SketchObject", "Sketch006")
body.addObject(sketch7)
sketch7.AttachmentSupport = (doc.YZ_Plane, [""])
sketch7.MapMode = "FlatFace"
sketch7.AttachmentOffset = App.Placement(App.Vector(0, 0, 86.079636), App.Rotation())
sketch7.addGeometry(Part.Circle(App.Vector(0, 0, 0), App.Vector(0, 0, 1), 4), False)
sketch7.addConstraint([
    Sketcher.Constraint("Coincident", 0, 3, -1, 1),
    Sketcher.Constraint("Diameter", 0, 8.0),
])
sketch7.setExpression("Constraints[1]", "Params.sketch7_diameter")
doc.recompute()
hole = doc.addObject("PartDesign::Hole", "Hole")
body.addObject(hole)
hole.Profile = sketch7
hole.ThreadType = "None"
hole.setExpression("Diameter", "Params.hole_diameter")
hole.DepthType = "Dimension"
hole.setExpression("Depth", "Params.hole_depth")
hole.DrillPoint = "Angled"
hole.DrillPointAngle = 118
hole.HoleCutType = "Countersink"
hole.setExpression("HoleCutDiameter", "Params.hole_csink_diameter")
hole.HoleCutCountersinkAngle = 60

# Sketch on YZ plane
sketch8 = doc.addObject("Sketcher::SketchObject", "Sketch007")
body.addObject(sketch8)
sketch8.AttachmentSupport = (doc.YZ_Plane, [""])
sketch8.MapMode = "FlatFace"
sketch8.AttachmentOffset = App.Placement(App.Vector(0, 0, 86.079636), App.Rotation())
sketch8.addGeometry([
    Part.LineSegment(App.Vector(-2.5, 7, 0), App.Vector(2.5, 7, 0)),
    Part.LineSegment(App.Vector(2.5, 7, 0), App.Vector(2.5, 8.6, 0)),
    Part.ArcOfCircle(Part.Circle(App.Vector(0, 0, 0), App.Vector(0, 0, 1), 9), math.radians(74), math.radians(106)),
    Part.LineSegment(App.Vector(-2.5, 8.6, 0), App.Vector(-2.5, 7, 0)),
], False)
sketch8.addConstraint([
    Sketcher.Constraint("Coincident", 0, 2, 1, 1),
    Sketcher.Constraint("Coincident", 1, 2, 2, 1),
    Sketcher.Constraint("Coincident", 2, 2, 3, 1),
    Sketcher.Constraint("Coincident", 3, 2, 0, 1),
    Sketcher.Constraint("Horizontal", 0),
    Sketcher.Constraint("Vertical", 1),
    Sketcher.Constraint("Vertical", 3),
    Sketcher.Constraint("Coincident", 2, 3, -1, 1),
    Sketcher.Constraint("Horizontal", 1, 2, 2, 2),
    Sketcher.Constraint("Radius", 2, 9.0),
    Sketcher.Constraint("DistanceX", 0, 1, 0, 2, 5.0),
    Sketcher.Constraint("DistanceY", -1, 1, 0, 2, 7.0),
])
sketch8.setExpression("Constraints[9]", "Params.sketch8_radius")
sketch8.setExpression("Constraints[10]", "Params.sketch8_width")
pocket2 = doc.addObject("PartDesign::Pocket", "Pocket001")
body.addObject(pocket2)
pocket2.Profile = sketch8
pocket2.setExpression("Length", "Params.pocket2_length")

# Sketch on YZ plane
sketch9 = doc.addObject("Sketcher::SketchObject", "Sketch008")
body.addObject(sketch9)
sketch9.AttachmentSupport = (doc.YZ_Plane, [""])
sketch9.MapMode = "FlatFace"
sketch9.AttachmentOffset = App.Placement(App.Vector(0, 0, 52.784663), App.Rotation())
sketch9.addGeometry([
    Part.Circle(App.Vector(0, 0, 0), App.Vector(0, 0, 1), 9),
    Part.Circle(App.Vector(0, 0, 0), App.Vector(0, 0, 1), 8),
], False)
sketch9.addConstraint([
    Sketcher.Constraint("Coincident", 0, 3, -1, 1),
    Sketcher.Constraint("Coincident", 1, 3, -1, 1),
    Sketcher.Constraint("Diameter", 0, 18.0),
    Sketcher.Constraint("Diameter", 1, 17.0),
])
sketch9.setExpression("Constraints[2]", "Params.sketch9_diameter")
sketch9.setExpression("Constraints[3]", "Params.sketch9_diameter2")
pad4 = doc.addObject("PartDesign::Pad", "Pad003")
body.addObject(pad4)
pad4.Profile = sketch9
pad4.setExpression("Length", "Params.pad4_length")
pad4.Reversed = True

doc.recompute()
